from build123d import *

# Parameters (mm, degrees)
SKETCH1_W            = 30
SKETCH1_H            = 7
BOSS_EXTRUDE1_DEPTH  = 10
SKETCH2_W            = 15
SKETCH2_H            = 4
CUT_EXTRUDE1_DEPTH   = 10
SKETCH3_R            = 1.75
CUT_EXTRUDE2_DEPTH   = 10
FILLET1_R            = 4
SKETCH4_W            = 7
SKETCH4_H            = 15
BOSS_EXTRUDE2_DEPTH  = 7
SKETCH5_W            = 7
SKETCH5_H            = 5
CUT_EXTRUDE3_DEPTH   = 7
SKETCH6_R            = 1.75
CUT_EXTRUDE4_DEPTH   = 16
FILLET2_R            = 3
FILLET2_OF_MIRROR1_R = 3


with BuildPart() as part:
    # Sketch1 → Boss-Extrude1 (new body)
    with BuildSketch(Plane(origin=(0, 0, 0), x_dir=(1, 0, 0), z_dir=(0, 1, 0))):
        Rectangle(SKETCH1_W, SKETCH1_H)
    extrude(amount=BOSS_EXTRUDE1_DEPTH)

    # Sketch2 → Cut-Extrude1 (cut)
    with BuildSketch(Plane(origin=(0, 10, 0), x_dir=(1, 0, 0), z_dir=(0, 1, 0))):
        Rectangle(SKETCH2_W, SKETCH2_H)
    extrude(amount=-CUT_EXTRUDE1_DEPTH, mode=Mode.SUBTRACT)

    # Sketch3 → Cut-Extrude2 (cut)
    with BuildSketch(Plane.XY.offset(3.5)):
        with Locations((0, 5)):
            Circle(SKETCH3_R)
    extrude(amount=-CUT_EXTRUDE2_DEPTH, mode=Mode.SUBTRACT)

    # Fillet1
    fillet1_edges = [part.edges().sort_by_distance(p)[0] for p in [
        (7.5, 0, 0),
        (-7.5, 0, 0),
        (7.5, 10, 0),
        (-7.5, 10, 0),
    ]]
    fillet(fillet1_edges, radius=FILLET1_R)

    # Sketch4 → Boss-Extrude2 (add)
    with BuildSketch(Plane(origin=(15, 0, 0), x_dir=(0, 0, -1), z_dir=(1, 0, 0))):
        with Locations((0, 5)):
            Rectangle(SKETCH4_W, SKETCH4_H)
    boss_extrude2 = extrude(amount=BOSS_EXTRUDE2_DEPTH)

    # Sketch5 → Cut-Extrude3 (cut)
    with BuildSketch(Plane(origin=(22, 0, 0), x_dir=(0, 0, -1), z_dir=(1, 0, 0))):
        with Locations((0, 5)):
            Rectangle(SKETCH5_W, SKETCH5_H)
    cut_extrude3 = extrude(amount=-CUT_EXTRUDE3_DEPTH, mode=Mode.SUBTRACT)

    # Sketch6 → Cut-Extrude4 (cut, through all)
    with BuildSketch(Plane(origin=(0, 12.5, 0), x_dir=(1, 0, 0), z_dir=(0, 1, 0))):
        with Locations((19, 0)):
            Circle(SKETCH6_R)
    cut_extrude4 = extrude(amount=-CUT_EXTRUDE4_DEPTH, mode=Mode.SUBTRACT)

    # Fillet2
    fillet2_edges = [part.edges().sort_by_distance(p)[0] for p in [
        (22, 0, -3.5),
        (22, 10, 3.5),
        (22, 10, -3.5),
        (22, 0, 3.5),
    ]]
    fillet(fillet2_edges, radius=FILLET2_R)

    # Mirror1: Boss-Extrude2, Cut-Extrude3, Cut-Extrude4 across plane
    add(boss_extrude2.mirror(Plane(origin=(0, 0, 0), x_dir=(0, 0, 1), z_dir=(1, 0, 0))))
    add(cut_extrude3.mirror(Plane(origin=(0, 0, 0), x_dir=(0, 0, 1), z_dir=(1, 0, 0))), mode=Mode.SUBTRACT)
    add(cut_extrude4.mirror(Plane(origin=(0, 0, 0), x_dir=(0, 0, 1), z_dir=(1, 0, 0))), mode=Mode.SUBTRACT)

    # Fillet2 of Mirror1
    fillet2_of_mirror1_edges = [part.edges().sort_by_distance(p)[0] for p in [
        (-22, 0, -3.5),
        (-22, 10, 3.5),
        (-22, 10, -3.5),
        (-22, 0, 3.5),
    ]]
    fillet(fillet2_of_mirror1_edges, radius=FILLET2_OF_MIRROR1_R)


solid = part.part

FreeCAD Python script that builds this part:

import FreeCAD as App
import Part
import Sketcher


def edges_at(feature, points):
    """Names of the edges that pass closest to the given points."""
    edges = feature.Shape.Edges
    near = lambda p: min(range(len(edges)), key=lambda i: edges[i].distToShape(Part.Vertex(*p))[0])
    return sorted({f"Edge{near(p) + 1}" for p in points})


def add_polygon(sketch, points):
    """Adds a closed chain of lines whose ends are joined by coincident constraints."""
    first, n = sketch.GeometryCount, len(points)
    for a, b in zip(points, points[1:] + points[:1]):
        sketch.addGeometry(Part.LineSegment(App.Vector(*a, 0), App.Vector(*b, 0)), False)
    for i in range(n):
        sketch.addConstraint(Sketcher.Constraint("Coincident", first + i, 2, first + (i + 1) % n, 1))

doc = App.newDocument("Part")
body = doc.addObject("PartDesign::Body", "Body")

# Sketch on XZ plane
sketch1 = body.newObject("Sketcher::SketchObject", "Sketch")
sketch1.AttachmentSupport = (doc.getObject("XZ_Plane"), [""])
sketch1.MapMode = "FlatFace"
add_polygon(sketch1, [(-15, -4), (-15, 4), (15, 4), (15, -4)])  # lines 0-3
sketch1.addConstraint([
    Sketcher.Constraint("Vertical", 0),
    Sketcher.Constraint("Horizontal", 1),
    Sketcher.Constraint("Vertical", 2),
    Sketcher.Constraint("Horizontal", 3),
    Sketcher.Constraint("Symmetric", 0, 2, 2, 2, -1, 1),
    Sketcher.Constraint("DistanceX", 1, 1, 1, 2, 30.0),
    Sketcher.Constraint("DistanceY", 0, 1, 0, 2, 7.0),
])
pad1 = body.newObject("PartDesign::Pad", "Pad")
pad1.Profile = sketch1
pad1.Length = 10
pad1.Reversed = True

# Sketch on XZ plane
sketch2 = body.newObject("Sketcher::SketchObject", "Sketch001")
sketch2.AttachmentSupport = (doc.getObject("XZ_Plane"), [""])
sketch2.MapMode = "FlatFace"
sketch2.AttachmentOffset = App.Placement(App.Vector(0, 0, -10), App.Rotation())
add_polygon(sketch2, [(-7.5, -2), (-7.5, 2), (7.5, 2), (7.5, -2)])  # lines 0-3
sketch2.addConstraint([
    Sketcher.Constraint("Vertical", 0),
    Sketcher.Constraint("Horizontal", 1),
    Sketcher.Constraint("Vertical", 2),
    Sketcher.Constraint("Horizontal", 3),
    Sketcher.Constraint("Symmetric", 0, 2, 2, 2, -1, 1),
    Sketcher.Constraint("DistanceX", 1, 1, 1, 2, 15.0),
    Sketcher.Constraint("DistanceY", 0, 1, 0, 2, 4.0),
])
pocket1 = body.newObject("PartDesign::Pocket", "Pocket")
pocket1.Profile = sketch2
pocket1.Length = 10
pocket1.Reversed = True

# Sketch on XY plane
sketch3 = body.newObject("Sketcher::SketchObject", "Sketch002")
sketch3.AttachmentSupport = (doc.getObject("XY_Plane"), [""])
sketch3.MapMode = "FlatFace"
sketch3.AttachmentOffset = App.Placement(App.Vector(0, 0, 3.5), App.Rotation())
sketch3.addGeometry(Part.Circle(App.Vector(0, 5, 0), App.Vector(0, 0, 1), 1.8), False)
sketch3.addConstraint([
    Sketcher.Constraint("PointOnObject", 0, 3, -2),
    Sketcher.Constraint("Diameter", 0, 3.5),
    Sketcher.Constraint("DistanceY", -1, 1, 0, 3, 5.0),
])
pocket2 = body.newObject("PartDesign::Pocket", "Pocket001")
pocket2.Profile = sketch3
pocket2.Length = 10
doc.recompute()

fillet = body.newObject("PartDesign::Fillet", "Fillet")
fillet.Base = (pocket2, edges_at(pocket2, [
    (7.5, 0, 0),
    (-7.5, 0, 0),
    (7.5, 10, 0),
    (-7.5, 10, 0),
]))
fillet.Radius = 4

# Sketch on YZ plane
sketch4 = body.newObject("Sketcher::SketchObject", "Sketch003")
sketch4.AttachmentSupport = (doc.getObject("YZ_Plane"), [""])
sketch4.MapMode = "FlatFace"
sketch4.AttachmentOffset = App.Placement(App.Vector(0, 0, 15), App.Rotation())
add_polygon(sketch4, [(12, 4), (-2, 4), (-2, -4), (12, -4)])  # lines 0-3
sketch4.addConstraint([
    Sketcher.Constraint("Horizontal", 0),
    Sketcher.Constraint("Vertical", 1),
    Sketcher.Constraint("Horizontal", 2),
    Sketcher.Constraint("Vertical", 3),
    Sketcher.Constraint("DistanceX", 0, 2, 0, 1, 15.0),
    Sketcher.Constraint("DistanceY", 1, 2, 1, 1, 7.0),
    Sketcher.Constraint("DistanceX", 0, 2, -1, 1, 2.5),
    Sketcher.Constraint("DistanceY", -1, 1, 0, 2, 3.5),
])
pad2 = body.newObject("PartDesign::Pad", "Pad001")
pad2.Profile = sketch4
pad2.Length = 7

# Sketch on YZ plane
sketch5 = body.newObject("Sketcher::SketchObject", "Sketch004")
sketch5.AttachmentSupport = (doc.getObject("YZ_Plane"), [""])
sketch5.MapMode = "FlatFace"
sketch5.AttachmentOffset = App.Placement(App.Vector(0, 0, 22), App.Rotation())
add_polygon(sketch5, [(8, 4), (2, 4), (2, -4), (8, -4)])  # lines 0-3
sketch5.addConstraint([
    Sketcher.Constraint("Horizontal", 0),
    Sketcher.Constraint("Vertical", 1),
    Sketcher.Constraint("Horizontal", 2),
    Sketcher.Constraint("Vertical", 3),
    Sketcher.Constraint("DistanceX", 0, 2, 0, 1, 5.0),
    Sketcher.Constraint("DistanceY", 1, 2, 1, 1, 7.0),
    Sketcher.Constraint("DistanceX", -1, 1, 0, 2, 2.5),
    Sketcher.Constraint("DistanceY", -1, 1, 0, 2, 3.5),
])
pocket3 = body.newObject("PartDesign::Pocket", "Pocket002")
pocket3.Profile = sketch5
pocket3.Length = 7

# Sketch on XZ plane
sketch6 = body.newObject("Sketcher::SketchObject", "Sketch005")
sketch6.AttachmentSupport = (doc.getObject("XZ_Plane"), [""])
sketch6.MapMode = "FlatFace"
sketch6.AttachmentOffset = App.Placement(App.Vector(0, 0, -12.5), App.Rotation())
sketch6.addGeometry(Part.Circle(App.Vector(19, 0, 0), App.Vector(0, 0, 1), 1.8), False)
sketch6.addConstraint([
    Sketcher.Constraint("PointOnObject", 0, 3, -1),
    Sketcher.Constraint("Diameter", 0, 3.5),
    Sketcher.Constraint("DistanceX", -1, 1, 0, 3, 19.0),
])
pocket4 = body.newObject("PartDesign::Pocket", "Pocket003")
pocket4.Profile = sketch6
pocket4.Type = "ThroughAll"
pocket4.Reversed = True
doc.recompute()

fillet2 = body.newObject("PartDesign::Fillet", "Fillet001")
fillet2.Base = (pocket4, edges_at(pocket4, [
    (22, 0, -3.5),
    (22, 10, 3.5),
    (22, 10, -3.5),
    (22, 0, 3.5),
]))
fillet2.Radius = 3
doc.recompute()

mirrored = body.newObject("PartDesign::Mirrored", "Mirrored")
mirrored.Originals = [pad2, pocket3, pocket4]
mirrored.MirrorPlane = (doc.getObject("YZ_Plane"), [""])
body.Tip = mirrored
doc.recompute()

fillet3 = body.newObject("PartDesign::Fillet", "Fillet002")
fillet3.Base = (mirrored, edges_at(mirrored, [
    (-22, 0, -3.5),
    (-22, 10, 3.5),
    (-22, 10, -3.5),
    (-22, 0, 3.5),
]))
fillet3.Radius = 3

doc.recompute()
